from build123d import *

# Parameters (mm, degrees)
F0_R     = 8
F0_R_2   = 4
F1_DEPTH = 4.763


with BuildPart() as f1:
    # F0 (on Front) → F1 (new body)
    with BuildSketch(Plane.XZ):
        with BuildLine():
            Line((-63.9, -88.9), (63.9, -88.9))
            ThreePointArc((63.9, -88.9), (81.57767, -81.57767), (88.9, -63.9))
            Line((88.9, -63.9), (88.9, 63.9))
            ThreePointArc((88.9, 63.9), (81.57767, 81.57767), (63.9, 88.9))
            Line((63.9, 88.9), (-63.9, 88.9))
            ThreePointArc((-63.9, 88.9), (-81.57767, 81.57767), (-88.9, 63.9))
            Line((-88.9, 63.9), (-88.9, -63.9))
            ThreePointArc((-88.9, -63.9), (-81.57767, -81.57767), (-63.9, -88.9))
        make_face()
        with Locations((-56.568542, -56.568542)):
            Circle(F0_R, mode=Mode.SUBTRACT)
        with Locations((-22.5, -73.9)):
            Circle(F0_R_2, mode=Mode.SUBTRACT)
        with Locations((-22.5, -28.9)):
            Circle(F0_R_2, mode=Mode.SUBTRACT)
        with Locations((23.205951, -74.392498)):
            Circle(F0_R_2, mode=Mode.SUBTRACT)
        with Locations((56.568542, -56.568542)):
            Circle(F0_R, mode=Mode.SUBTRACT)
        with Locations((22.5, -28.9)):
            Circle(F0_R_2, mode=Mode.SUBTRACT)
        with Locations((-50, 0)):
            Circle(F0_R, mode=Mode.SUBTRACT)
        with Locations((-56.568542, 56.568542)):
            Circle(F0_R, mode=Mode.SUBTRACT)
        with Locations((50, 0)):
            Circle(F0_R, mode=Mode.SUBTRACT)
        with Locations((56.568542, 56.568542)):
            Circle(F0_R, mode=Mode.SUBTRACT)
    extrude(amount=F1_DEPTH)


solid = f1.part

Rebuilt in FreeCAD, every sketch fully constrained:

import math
import FreeCAD as App
import Part
import Sketcher
Q = App.Units.Quantity

doc = App.newDocument("Part")
body = doc.addObject("PartDesign::Body", "Body")

# Sketch on XZ plane
sketch1 = body.newObject("Sketcher::SketchObject", "Sketch")
sketch1.AttachmentSupport = (doc.getObject("XZ_Plane"), [""])
sketch1.MapMode = "FlatFace"
sketch1.addGeometry([
    Part.LineSegment(App.Vector(-63.9, -88.9, 0), App.Vector(63.9, -88.9, 0)),  # 0
    Part.ArcOfCircle(Part.Circle(App.Vector(63.900002, -63.900002, 0), App.Vector(0, 0, 1), 24.999998), math.radians(-90.000004), math.radians(0.000004)),  # 1
    Part.LineSegment(App.Vector(88.9, -63.9, 0), App.Vector(88.9, 63.9, 0)),  # 2
    Part.ArcOfCircle(Part.Circle(App.Vector(63.900002, 63.900002, 0), App.Vector(0, 0, 1), 24.999998), math.radians(-0.000004), math.radians(90.000004)),  # 3
    Part.LineSegment(App.Vector(63.9, 88.9, 0), App.Vector(-63.9, 88.9, 0)),  # 4
    Part.ArcOfCircle(Part.Circle(App.Vector(-63.900002, 63.900002, 0), App.Vector(0, 0, 1), 24.999998), math.radians(89.999996), math.radians(180.000004)),  # 5
    Part.LineSegment(App.Vector(-88.9, 63.9, 0), App.Vector(-88.9, -63.9, 0)),  # 6
    Part.ArcOfCircle(Part.Circle(App.Vector(-63.900002, -63.900002, 0), App.Vector(0, 0, 1), 24.999998), math.radians(179.999996), math.radians(270.000004)),  # 7
    Part.Circle(App.Vector(-56.568542, -56.568542, 0), App.Vector(0, 0, 1), 8),  # 8
    Part.Circle(App.Vector(-22.5, -73.9, 0), App.Vector(0, 0, 1), 4),  # 9
    Part.Circle(App.Vector(-22.5, -28.9, 0), App.Vector(0, 0, 1), 4),  # 10
    Part.Circle(App.Vector(23.205951, -74.392498, 0), App.Vector(0, 0, 1), 4),  # 11
    Part.Circle(App.Vector(56.568542, -56.568542, 0), App.Vector(0, 0, 1), 8),  # 12
    Part.Circle(App.Vector(22.5, -28.9, 0), App.Vector(0, 0, 1), 4),  # 13
    Part.Circle(App.Vector(-50, 0, 0), App.Vector(0, 0, 1), 8),  # 14
    Part.Circle(App.Vector(-56.568542, 56.568542, 0), App.Vector(0, 0, 1), 8),  # 15
    Part.Circle(App.Vector(50, 0, 0), App.Vector(0, 0, 1), 8),  # 16
    Part.Circle(App.Vector(56.568542, 56.568542, 0), App.Vector(0, 0, 1), 8),  # 17
], False)
sketch1.addConstraint([
    Sketcher.Constraint("Tangent", 0, 2, 1, 1),
    Sketcher.Constraint("Tangent", 1, 2, 2, 1),
    Sketcher.Constraint("Tangent", 2, 2, 3, 1),
    Sketcher.Constraint("Tangent", 3, 2, 4, 1),
    Sketcher.Constraint("Tangent", 4, 2, 5, 1),
    Sketcher.Constraint("Tangent", 5, 2, 6, 1),
    Sketcher.Constraint("Tangent", 6, 2, 7, 1),
    Sketcher.Constraint("Tangent", 7, 2, 0, 1),
    Sketcher.Constraint("Horizontal", 0),
    Sketcher.Constraint("Vertical", 2),
    Sketcher.Constraint("Horizontal", 4),
    Sketcher.Constraint("Vertical", 6),
    Sketcher.Constraint("Equal", 1, 3),
    Sketcher.Constraint("Equal", 3, 5),
    Sketcher.Constraint("Equal", 5, 7),
    Sketcher.Constraint("Equal", 9, 10),
    Sketcher.Constraint("Equal", 10, 11),
    Sketcher.Constraint("Equal", 8, 12),
    Sketcher.Constraint("Equal", 11, 13),
    Sketcher.Constraint("Equal", 12, 14),
    Sketcher.Constraint("Equal", 14, 15),
    Sketcher.Constraint("Equal", 15, 16),
    Sketcher.Constraint("Equal", 16, 17),
    Sketcher.Constraint("Symmetric", 1, 3, 5, 3, -1, 1),
    Sketcher.Constraint("Symmetric", 12, 3, 15, 3, -1, 1),
    Sketcher.Constraint("Symmetric", 14, 3, 16, 3, -1, 1),
    Sketcher.Constraint("Symmetric", 8, 3, 17, 3, -1, 1),
    Sketcher.Constraint("Symmetric", 8, 3, 12, 3, -2),
    Sketcher.Constraint("Symmetric", 10, 3, 13, 3, -2),
    Sketcher.Constraint("PointOnObject", 14, 3, -1),
    Sketcher.Constraint("Vertical", 9, 3, 10, 3),
    Sketcher.Constraint("Equal", 4, 2),
    Sketcher.Constraint("Diameter", 8, Q("16 mm")),
    Sketcher.Constraint("Diameter", 9, Q("8 mm")),
    Sketcher.Constraint("Radius", 1, Q("24.999998 mm")),
    Sketcher.Constraint("DistanceX", 0, 1, 0, 2, Q("127.8 mm")),
    Sketcher.Constraint("DistanceX", 14, 3, -1, 1, Q("50 mm")),
    Sketcher.Constraint("DistanceY", 9, 3, 7, 3, Q("9.999998 mm")),
    Sketcher.Constraint("DistanceY", 9, 3, 10, 3, Q("45 mm")),
    Sketcher.Constraint("DistanceX", 10, 3, 13, 3, Q("45 mm")),
    Sketcher.Constraint("DistanceY", 11, 3, -1, 1, Q("74.392498 mm")),
    Sketcher.Constraint("DistanceX", -1, 1, 11, 3, Q("23.205951 mm")),
    Sketcher.Constraint("DistanceX", 7, 3, 8, 3, Q("7.33146 mm")),
    Sketcher.Constraint("DistanceY", 7, 3, 8, 3, Q("7.33146 mm")),
])
pad1 = body.newObject("PartDesign::Pad", "Pad")
pad1.Profile = sketch1
pad1.Length = 4.763

doc.recompute()
